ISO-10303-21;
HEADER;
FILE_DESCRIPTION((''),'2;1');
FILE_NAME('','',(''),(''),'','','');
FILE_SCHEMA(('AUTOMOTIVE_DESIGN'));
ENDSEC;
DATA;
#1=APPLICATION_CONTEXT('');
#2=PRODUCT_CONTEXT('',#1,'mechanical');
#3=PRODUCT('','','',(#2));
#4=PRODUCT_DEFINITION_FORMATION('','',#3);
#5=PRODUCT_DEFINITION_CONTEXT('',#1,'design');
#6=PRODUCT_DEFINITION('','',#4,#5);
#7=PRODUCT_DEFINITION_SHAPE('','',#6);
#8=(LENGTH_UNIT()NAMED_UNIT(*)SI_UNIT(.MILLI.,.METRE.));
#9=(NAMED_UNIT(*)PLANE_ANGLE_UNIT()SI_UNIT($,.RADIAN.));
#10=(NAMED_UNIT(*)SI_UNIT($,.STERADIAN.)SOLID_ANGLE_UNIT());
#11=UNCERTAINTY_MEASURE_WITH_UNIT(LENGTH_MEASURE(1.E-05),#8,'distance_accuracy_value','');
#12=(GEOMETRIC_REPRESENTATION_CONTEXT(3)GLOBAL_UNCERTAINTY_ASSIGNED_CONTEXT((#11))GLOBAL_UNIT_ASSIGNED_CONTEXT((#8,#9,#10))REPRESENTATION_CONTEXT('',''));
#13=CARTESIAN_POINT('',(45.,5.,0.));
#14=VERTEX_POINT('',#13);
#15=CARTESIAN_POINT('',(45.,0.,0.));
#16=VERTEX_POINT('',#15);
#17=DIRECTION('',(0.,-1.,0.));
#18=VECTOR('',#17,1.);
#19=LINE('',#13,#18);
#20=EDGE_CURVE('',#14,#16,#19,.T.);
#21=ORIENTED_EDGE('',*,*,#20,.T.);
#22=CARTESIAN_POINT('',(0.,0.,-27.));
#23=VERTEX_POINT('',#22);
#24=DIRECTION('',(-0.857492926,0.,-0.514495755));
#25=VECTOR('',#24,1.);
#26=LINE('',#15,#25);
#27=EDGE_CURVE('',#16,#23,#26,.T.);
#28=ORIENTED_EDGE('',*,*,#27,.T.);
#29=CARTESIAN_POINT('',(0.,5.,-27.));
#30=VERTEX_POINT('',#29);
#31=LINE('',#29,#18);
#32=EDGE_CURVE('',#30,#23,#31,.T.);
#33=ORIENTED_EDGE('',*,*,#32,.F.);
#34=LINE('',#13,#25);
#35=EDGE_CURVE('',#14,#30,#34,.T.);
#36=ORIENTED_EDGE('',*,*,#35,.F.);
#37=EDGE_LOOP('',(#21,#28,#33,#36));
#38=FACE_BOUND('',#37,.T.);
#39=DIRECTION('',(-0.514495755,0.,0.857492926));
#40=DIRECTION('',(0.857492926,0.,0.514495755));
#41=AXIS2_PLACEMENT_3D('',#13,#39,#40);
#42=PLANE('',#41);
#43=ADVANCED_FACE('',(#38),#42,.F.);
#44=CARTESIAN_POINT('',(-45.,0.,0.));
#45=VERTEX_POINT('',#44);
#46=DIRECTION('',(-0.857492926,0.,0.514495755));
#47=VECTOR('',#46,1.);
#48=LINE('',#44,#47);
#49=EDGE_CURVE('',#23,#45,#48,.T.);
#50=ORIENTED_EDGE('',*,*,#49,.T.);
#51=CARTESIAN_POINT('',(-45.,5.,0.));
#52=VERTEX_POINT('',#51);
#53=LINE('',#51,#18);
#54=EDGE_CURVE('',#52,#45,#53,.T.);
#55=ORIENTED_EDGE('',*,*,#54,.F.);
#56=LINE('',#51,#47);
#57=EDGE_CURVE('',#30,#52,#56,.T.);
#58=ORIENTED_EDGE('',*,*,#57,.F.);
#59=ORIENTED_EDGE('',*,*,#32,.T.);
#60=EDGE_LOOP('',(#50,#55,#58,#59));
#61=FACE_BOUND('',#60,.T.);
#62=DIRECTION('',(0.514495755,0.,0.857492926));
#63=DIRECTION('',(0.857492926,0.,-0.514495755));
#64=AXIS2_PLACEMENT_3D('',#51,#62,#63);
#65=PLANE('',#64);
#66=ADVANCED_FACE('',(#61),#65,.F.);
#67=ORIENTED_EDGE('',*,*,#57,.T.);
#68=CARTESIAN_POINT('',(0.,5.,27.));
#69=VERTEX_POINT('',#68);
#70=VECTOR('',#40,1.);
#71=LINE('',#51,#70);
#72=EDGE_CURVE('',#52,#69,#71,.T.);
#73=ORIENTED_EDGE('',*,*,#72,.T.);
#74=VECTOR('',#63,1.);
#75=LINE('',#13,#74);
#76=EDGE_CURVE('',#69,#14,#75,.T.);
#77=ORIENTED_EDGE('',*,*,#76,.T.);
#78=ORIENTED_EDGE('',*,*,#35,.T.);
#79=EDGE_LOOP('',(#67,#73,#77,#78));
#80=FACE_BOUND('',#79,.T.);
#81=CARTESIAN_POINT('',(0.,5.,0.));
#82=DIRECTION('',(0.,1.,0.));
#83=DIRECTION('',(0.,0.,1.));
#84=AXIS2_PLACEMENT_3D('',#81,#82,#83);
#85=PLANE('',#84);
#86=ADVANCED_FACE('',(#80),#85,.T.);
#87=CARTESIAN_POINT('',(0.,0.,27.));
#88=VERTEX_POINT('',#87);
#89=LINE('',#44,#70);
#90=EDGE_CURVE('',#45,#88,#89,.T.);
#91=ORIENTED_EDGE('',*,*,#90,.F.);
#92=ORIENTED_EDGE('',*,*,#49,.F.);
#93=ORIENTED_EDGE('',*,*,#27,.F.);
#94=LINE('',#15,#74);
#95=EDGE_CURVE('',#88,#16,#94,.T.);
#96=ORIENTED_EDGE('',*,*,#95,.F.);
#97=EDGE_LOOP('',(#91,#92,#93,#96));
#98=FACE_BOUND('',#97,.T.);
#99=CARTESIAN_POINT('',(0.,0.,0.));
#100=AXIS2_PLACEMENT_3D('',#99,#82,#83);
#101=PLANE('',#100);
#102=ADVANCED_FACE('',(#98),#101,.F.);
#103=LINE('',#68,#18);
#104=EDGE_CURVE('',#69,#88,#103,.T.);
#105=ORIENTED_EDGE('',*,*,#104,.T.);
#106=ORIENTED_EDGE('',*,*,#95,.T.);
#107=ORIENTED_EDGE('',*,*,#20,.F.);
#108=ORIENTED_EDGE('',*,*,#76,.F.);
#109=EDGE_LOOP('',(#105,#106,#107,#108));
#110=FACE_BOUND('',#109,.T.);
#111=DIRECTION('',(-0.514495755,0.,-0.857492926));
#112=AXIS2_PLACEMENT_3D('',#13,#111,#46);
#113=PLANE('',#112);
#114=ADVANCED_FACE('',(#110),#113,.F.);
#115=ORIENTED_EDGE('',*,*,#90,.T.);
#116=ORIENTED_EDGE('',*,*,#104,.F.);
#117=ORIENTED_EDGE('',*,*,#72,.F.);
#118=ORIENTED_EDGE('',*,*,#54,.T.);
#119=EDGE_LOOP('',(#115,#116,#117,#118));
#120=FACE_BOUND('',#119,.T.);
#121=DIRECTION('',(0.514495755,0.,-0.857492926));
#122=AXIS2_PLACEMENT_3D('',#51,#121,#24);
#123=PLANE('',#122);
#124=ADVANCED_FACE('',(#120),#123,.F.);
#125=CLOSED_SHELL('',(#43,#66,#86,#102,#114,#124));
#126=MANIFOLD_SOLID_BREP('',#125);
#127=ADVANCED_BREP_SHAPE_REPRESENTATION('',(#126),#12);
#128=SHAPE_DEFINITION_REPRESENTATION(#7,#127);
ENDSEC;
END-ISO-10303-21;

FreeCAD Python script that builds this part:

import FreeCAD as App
import Part
import Sketcher

V = App.Vector
Q = App.Units.Quantity


def add_polygon(sketch, points):
    """Adds a closed chain of lines whose ends are joined by coincident constraints."""
    first, n = sketch.GeometryCount, len(points)
    for a, b in zip(points, points[1:] + points[:1]):
        sketch.addGeometry(Part.LineSegment(App.Vector(*a, 0), App.Vector(*b, 0)), False)
    for i in range(n):
        sketch.addConstraint(Sketcher.Constraint("Coincident", first + i, 2, first + (i + 1) % n, 1))

doc = App.newDocument("Part")
params = doc.addObject("Spreadsheet::Sheet", "Params")
for row, (alias, value) in enumerate([
    ("pad1_length", "5 mm"),
], start=1):
    params.set(f"A{row}", alias)
    params.set(f"B{row}", "=" + value)
    params.setAlias(f"B{row}", alias)

body = doc.addObject("PartDesign::Body", "Body")

# Sketch on XZ plane
sketch1 = body.newObject("Sketcher::SketchObject", "Sketch")
sketch1.AttachmentSupport = (doc.getObject("XZ_Plane"), [""])
sketch1.MapMode = "FlatFace"
add_polygon(sketch1, [(45, 0), (0, -27), (-45, 0), (0, 27)])  # lines 0-3
sketch1.addConstraint(Sketcher.Constraint("Symmetric", 0, 2, 2, 2, -1, 1))
sketch1.addConstraint(Sketcher.Constraint("Symmetric", 1, 2, 3, 2, -1, 1))
sketch1.addConstraint(Sketcher.Constraint("PointOnObject", 0, 2, -2))
sketch1.addConstraint(Sketcher.Constraint("PointOnObject", 1, 2, -1))
sketch1.addConstraint(Sketcher.Constraint("DistanceY", 0, 2, -1, 1, Q("27 mm")))
sketch1.addConstraint(Sketcher.Constraint("DistanceX", 1, 2, -1, 1, Q("45 mm")))
pad1 = body.newObject("PartDesign::Pad", "Pad")
pad1.Profile = sketch1
pad1.setExpression("Length", "Params.pad1_length")
pad1.Reversed = True

doc.recompute()
